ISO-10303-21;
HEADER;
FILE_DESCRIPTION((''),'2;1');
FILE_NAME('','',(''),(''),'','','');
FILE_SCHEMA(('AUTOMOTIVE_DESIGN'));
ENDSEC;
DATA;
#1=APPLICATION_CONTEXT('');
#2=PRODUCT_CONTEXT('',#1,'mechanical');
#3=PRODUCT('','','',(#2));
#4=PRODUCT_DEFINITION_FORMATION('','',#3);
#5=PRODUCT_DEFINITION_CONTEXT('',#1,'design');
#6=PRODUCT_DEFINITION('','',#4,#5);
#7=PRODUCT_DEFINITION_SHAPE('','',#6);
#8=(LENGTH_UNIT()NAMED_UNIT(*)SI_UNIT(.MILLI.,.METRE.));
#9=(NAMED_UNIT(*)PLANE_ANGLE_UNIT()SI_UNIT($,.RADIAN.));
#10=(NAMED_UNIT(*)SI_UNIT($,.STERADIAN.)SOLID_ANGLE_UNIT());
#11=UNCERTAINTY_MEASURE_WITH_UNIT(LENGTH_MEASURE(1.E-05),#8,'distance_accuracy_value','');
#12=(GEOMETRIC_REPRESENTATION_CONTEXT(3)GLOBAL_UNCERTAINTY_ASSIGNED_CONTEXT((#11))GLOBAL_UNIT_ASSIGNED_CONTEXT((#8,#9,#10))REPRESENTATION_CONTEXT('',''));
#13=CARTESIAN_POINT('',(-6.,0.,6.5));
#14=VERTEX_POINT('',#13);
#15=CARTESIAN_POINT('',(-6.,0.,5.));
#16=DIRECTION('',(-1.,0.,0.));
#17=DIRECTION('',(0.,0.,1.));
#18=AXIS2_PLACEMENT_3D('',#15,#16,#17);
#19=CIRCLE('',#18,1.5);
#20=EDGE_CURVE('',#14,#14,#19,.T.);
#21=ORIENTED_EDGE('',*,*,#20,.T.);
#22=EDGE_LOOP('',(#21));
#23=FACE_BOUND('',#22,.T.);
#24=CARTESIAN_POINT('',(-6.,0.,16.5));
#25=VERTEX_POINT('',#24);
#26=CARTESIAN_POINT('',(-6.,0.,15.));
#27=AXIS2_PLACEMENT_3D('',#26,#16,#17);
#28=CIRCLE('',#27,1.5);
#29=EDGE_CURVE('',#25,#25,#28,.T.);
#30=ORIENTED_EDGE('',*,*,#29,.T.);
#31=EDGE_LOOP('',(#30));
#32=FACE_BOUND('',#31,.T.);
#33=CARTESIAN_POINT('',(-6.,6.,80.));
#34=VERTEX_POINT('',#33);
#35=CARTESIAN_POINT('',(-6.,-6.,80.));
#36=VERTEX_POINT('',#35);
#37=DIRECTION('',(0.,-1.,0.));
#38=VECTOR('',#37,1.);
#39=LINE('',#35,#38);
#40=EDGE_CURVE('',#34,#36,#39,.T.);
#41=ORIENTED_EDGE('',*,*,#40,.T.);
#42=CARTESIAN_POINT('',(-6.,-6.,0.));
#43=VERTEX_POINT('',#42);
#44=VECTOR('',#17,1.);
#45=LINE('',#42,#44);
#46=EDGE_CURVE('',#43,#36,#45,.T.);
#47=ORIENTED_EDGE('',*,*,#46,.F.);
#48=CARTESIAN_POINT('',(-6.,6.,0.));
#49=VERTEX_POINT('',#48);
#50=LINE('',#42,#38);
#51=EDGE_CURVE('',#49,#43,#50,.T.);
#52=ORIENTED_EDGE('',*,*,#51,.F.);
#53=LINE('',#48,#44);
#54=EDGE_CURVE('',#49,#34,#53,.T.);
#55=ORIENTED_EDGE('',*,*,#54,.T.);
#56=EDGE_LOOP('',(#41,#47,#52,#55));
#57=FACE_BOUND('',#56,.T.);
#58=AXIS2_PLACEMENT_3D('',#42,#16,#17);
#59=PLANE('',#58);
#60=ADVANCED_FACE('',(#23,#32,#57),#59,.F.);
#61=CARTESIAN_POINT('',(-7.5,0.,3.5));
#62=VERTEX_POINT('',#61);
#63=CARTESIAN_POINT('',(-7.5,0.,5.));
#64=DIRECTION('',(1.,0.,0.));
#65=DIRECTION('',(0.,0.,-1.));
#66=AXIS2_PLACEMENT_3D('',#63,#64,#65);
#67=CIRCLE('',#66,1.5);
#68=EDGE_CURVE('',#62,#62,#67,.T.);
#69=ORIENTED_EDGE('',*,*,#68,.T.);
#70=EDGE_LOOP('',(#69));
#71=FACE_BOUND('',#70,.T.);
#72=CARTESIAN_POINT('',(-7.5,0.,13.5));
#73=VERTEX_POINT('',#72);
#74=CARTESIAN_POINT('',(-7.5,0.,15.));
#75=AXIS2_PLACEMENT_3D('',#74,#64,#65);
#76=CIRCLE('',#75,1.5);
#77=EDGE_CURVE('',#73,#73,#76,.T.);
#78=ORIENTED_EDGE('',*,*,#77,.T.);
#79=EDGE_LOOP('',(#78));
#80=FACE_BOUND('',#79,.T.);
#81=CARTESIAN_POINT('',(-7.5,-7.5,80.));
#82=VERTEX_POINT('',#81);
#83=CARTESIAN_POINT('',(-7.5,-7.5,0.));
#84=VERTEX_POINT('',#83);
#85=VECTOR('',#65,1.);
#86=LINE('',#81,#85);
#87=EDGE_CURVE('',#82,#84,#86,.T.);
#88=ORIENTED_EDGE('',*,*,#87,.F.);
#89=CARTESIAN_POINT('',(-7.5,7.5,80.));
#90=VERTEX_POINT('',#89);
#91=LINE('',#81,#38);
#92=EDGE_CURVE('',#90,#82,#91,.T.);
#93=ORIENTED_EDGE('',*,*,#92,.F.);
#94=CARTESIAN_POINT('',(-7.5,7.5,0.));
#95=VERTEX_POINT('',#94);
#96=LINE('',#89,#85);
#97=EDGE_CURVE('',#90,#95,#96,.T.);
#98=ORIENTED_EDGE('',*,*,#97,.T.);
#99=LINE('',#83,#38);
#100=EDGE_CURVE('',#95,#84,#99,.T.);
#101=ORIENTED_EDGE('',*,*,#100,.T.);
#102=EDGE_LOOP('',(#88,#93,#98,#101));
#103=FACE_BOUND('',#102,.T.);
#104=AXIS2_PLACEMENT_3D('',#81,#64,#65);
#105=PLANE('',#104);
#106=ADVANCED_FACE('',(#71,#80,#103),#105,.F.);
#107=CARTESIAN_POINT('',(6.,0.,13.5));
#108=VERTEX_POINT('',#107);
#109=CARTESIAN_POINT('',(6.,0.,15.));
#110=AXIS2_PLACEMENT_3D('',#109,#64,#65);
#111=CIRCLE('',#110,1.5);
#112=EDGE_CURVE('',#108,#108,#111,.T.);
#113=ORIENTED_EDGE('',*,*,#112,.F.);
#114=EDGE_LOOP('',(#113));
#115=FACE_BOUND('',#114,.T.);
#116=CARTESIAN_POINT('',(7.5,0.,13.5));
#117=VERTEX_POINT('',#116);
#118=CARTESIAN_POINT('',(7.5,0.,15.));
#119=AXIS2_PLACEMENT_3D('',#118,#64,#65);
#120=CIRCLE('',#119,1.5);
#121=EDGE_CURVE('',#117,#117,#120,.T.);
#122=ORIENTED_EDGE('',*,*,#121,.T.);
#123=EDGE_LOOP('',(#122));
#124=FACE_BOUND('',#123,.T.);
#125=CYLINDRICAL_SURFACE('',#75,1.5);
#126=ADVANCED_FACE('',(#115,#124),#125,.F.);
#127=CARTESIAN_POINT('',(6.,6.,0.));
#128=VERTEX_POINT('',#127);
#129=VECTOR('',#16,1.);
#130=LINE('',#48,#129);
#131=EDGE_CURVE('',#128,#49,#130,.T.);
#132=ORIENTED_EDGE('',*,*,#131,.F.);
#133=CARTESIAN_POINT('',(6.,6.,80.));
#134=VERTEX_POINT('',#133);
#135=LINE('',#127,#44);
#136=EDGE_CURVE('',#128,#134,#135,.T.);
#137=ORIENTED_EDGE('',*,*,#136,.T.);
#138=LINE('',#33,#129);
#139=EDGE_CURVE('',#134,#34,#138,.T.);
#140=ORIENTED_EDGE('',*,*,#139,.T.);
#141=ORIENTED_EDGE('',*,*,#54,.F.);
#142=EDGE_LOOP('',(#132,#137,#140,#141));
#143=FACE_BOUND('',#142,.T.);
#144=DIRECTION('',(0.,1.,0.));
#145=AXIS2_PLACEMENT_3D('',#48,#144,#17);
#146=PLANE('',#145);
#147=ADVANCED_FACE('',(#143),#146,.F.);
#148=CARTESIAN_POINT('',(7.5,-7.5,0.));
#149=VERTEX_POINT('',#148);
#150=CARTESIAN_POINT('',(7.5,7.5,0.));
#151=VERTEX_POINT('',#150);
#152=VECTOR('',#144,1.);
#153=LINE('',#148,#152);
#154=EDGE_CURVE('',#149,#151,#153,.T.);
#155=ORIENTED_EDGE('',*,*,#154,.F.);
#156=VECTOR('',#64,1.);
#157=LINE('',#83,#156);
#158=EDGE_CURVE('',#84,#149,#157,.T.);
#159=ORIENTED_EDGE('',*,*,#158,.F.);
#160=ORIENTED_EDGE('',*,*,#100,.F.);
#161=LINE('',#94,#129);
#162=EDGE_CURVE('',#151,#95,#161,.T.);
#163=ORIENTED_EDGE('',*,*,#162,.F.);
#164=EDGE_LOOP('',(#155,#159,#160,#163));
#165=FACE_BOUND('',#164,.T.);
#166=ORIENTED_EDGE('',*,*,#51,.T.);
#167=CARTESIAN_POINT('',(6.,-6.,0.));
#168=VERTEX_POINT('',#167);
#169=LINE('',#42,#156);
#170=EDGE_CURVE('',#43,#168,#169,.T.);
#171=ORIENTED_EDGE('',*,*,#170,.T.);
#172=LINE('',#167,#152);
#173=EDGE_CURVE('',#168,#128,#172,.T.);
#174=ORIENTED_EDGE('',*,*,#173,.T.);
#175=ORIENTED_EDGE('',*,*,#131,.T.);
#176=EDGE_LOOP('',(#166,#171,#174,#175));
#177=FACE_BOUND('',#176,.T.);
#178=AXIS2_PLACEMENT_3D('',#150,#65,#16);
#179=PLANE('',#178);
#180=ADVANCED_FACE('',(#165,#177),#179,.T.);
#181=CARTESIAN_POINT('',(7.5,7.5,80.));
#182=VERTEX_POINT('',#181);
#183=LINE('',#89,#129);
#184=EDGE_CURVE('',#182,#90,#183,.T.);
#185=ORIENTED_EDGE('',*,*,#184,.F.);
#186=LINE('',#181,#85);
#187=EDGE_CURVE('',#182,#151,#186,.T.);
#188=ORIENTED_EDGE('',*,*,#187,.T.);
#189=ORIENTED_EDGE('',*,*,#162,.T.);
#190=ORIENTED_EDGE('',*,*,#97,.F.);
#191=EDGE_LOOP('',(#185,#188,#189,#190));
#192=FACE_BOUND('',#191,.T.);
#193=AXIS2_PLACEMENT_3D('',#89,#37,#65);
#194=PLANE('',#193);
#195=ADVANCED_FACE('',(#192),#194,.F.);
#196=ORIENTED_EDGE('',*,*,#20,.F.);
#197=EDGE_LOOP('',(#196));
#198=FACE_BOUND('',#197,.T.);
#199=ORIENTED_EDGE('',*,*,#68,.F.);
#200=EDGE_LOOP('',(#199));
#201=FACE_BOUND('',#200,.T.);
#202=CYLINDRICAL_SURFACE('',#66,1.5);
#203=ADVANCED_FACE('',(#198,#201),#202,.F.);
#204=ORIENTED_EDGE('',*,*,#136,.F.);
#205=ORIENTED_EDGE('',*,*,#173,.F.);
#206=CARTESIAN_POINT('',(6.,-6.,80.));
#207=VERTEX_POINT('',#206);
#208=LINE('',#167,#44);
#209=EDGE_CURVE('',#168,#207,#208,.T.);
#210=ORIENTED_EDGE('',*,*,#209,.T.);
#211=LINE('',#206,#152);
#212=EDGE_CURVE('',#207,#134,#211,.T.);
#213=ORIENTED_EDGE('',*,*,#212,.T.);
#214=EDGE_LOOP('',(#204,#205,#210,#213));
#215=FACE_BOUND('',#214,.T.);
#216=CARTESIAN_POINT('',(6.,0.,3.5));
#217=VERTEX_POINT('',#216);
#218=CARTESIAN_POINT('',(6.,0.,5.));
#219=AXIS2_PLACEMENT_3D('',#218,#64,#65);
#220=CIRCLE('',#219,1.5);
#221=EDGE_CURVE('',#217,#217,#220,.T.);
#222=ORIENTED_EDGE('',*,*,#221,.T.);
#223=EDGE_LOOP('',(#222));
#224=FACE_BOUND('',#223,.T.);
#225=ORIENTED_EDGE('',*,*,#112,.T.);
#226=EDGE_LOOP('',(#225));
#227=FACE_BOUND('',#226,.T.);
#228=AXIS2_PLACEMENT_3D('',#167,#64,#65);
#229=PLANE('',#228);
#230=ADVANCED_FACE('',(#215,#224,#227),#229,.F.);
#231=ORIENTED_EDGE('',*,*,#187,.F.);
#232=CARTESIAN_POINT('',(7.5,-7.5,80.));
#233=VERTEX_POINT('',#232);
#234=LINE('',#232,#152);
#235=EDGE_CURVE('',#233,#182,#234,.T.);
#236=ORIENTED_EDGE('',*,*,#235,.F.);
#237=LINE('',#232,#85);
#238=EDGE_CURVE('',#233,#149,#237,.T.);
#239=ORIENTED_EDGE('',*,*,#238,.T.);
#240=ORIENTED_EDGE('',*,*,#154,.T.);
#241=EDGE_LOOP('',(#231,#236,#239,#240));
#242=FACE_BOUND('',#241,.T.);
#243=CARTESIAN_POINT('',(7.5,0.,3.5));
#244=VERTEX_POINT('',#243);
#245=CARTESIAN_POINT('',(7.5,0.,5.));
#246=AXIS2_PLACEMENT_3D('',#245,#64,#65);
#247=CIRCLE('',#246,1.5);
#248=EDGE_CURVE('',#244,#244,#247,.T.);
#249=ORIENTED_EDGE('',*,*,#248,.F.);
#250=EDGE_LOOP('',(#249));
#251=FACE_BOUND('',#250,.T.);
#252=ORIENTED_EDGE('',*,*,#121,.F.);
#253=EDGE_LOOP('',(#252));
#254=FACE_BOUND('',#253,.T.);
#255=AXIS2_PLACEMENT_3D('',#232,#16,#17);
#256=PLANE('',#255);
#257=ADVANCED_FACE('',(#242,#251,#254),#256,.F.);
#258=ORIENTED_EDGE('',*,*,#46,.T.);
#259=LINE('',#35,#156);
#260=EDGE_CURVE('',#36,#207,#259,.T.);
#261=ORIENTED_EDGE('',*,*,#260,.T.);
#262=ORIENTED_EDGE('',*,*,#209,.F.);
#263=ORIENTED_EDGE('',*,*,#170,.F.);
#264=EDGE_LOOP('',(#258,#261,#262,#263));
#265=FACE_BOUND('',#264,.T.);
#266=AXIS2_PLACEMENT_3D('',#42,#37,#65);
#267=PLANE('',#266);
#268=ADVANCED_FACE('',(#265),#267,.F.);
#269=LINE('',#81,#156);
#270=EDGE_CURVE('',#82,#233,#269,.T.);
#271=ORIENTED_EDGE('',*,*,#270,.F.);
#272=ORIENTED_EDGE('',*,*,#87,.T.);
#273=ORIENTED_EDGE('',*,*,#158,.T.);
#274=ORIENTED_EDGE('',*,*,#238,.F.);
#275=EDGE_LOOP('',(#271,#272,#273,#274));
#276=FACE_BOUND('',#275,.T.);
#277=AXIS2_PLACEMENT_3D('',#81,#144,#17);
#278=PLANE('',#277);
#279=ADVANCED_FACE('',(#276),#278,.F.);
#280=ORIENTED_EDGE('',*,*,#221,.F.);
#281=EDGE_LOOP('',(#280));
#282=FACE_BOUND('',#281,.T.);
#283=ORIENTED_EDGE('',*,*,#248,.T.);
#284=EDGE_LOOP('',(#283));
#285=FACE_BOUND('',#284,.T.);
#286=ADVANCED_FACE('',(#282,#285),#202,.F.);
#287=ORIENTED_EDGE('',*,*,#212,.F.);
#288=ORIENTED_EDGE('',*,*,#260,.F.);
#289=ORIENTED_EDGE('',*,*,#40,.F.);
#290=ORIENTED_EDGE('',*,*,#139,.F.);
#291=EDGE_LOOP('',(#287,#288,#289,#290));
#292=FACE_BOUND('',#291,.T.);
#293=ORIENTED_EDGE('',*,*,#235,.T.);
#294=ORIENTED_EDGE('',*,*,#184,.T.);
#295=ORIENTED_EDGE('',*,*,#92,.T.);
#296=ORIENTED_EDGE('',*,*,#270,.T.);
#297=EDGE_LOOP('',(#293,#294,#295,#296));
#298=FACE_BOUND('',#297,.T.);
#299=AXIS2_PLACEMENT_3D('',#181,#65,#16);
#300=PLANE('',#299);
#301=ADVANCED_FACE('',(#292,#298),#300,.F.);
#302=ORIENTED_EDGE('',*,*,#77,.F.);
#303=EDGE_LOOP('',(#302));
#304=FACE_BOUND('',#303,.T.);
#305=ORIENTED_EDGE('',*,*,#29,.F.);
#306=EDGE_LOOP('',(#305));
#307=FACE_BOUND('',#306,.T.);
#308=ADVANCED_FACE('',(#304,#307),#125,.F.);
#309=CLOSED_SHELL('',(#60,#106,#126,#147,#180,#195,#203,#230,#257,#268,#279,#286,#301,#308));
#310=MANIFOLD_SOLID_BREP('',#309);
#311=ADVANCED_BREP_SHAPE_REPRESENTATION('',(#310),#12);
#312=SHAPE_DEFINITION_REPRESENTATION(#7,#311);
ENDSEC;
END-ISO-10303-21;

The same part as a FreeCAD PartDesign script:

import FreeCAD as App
import Part
import Sketcher
from FreeCAD import Vector

doc = App.newDocument("Part")
body = doc.addObject("PartDesign::Body", "Body")

# Sketch on XY plane
sketch1 = body.newObject("Sketcher::SketchObject", "Sketch")
sketch1.AttachmentSupport = (doc.getObject("XY_Plane"), [""])
sketch1.MapMode = "FlatFace"
sketch1.addGeometry([
    Part.LineSegment(Vector(-8, 8, 0), Vector(-8, -8, 0)),
    Part.LineSegment(Vector(-8, -8, 0), Vector(8, -8, 0)),
    Part.LineSegment(Vector(8, -8, 0), Vector(8, 8, 0)),
    Part.LineSegment(Vector(8, 8, 0), Vector(-8, 8, 0)),
], False)
sketch1.addConstraint([
    Sketcher.Constraint("Coincident", 0, 2, 1, 1),
    Sketcher.Constraint("Coincident", 1, 2, 2, 1),
    Sketcher.Constraint("Coincident", 2, 2, 3, 1),
    Sketcher.Constraint("Coincident", 3, 2, 0, 1),
    Sketcher.Constraint("Vertical", 0),
    Sketcher.Constraint("Horizontal", 1),
    Sketcher.Constraint("Vertical", 2),
    Sketcher.Constraint("Horizontal", 3),
    Sketcher.Constraint("Symmetric", 0, 2, 2, 2, -1, 1),
    Sketcher.Constraint("Equal", 3, 0),
    Sketcher.Constraint("DistanceX", 1, 1, 1, 2, 15.0),
])
pad1 = body.newObject("PartDesign::Pad", "Pad")
pad1.Profile = sketch1
pad1.Length = 80

# Sketch on XY plane
sketch2 = body.newObject("Sketcher::SketchObject", "Sketch001")
sketch2.AttachmentSupport = (doc.getObject("XY_Plane"), [""])
sketch2.MapMode = "FlatFace"
sketch2.AttachmentOffset = App.Placement(Vector(0, 0, 80), App.Rotation())
sketch2.addGeometry([
    Part.LineSegment(Vector(-6, 6, 0), Vector(-6, -6, 0)),
    Part.LineSegment(Vector(-6, -6, 0), Vector(6, -6, 0)),
    Part.LineSegment(Vector(6, -6, 0), Vector(6, 6, 0)),
    Part.LineSegment(Vector(6, 6, 0), Vector(-6, 6, 0)),
], False)
sketch2.addConstraint([
    Sketcher.Constraint("Coincident", 0, 2, 1, 1),
    Sketcher.Constraint("Coincident", 1, 2, 2, 1),
    Sketcher.Constraint("Coincident", 2, 2, 3, 1),
    Sketcher.Constraint("Coincident", 3, 2, 0, 1),
    Sketcher.Constraint("Vertical", 0),
    Sketcher.Constraint("Horizontal", 1),
    Sketcher.Constraint("Vertical", 2),
    Sketcher.Constraint("Horizontal", 3),
    Sketcher.Constraint("Symmetric", 0, 2, 2, 2, -1, 1),
    Sketcher.Constraint("Equal", 3, 0),
    Sketcher.Constraint("DistanceX", 1, 1, 1, 2, 12.0),
])
pocket1 = body.newObject("PartDesign::Pocket", "Pocket")
pocket1.Profile = sketch2
pocket1.Type = "ThroughAll"

# Sketch on YZ plane
sketch3 = body.newObject("Sketcher::SketchObject", "Sketch002")
sketch3.AttachmentSupport = (doc.getObject("YZ_Plane"), [""])
sketch3.MapMode = "FlatFace"
sketch3.AttachmentOffset = App.Placement(Vector(0, 0, 7.5), App.Rotation())
sketch3.addGeometry([
    Part.Circle(Vector(0, 5, 0), Vector(0, 0, 1), 1.5),
    Part.Circle(Vector(0, 15, 0), Vector(0, 0, 1), 1.5),
], False)
sketch3.addConstraint([
    Sketcher.Constraint("Equal", 0, 1),
    Sketcher.Constraint("PointOnObject", 0, 3, -2),
    Sketcher.Constraint("PointOnObject", 1, 3, -2),
    Sketcher.Constraint("Diameter", 0, 3.0),
    Sketcher.Constraint("DistanceY", -1, 1, 0, 3, 5.0),
    Sketcher.Constraint("DistanceY", -1, 1, 1, 3, 15.0),
])
pocket2 = body.newObject("PartDesign::Pocket", "Pocket001")
pocket2.Profile = sketch3
pocket2.Type = "ThroughAll"

doc.recompute()
